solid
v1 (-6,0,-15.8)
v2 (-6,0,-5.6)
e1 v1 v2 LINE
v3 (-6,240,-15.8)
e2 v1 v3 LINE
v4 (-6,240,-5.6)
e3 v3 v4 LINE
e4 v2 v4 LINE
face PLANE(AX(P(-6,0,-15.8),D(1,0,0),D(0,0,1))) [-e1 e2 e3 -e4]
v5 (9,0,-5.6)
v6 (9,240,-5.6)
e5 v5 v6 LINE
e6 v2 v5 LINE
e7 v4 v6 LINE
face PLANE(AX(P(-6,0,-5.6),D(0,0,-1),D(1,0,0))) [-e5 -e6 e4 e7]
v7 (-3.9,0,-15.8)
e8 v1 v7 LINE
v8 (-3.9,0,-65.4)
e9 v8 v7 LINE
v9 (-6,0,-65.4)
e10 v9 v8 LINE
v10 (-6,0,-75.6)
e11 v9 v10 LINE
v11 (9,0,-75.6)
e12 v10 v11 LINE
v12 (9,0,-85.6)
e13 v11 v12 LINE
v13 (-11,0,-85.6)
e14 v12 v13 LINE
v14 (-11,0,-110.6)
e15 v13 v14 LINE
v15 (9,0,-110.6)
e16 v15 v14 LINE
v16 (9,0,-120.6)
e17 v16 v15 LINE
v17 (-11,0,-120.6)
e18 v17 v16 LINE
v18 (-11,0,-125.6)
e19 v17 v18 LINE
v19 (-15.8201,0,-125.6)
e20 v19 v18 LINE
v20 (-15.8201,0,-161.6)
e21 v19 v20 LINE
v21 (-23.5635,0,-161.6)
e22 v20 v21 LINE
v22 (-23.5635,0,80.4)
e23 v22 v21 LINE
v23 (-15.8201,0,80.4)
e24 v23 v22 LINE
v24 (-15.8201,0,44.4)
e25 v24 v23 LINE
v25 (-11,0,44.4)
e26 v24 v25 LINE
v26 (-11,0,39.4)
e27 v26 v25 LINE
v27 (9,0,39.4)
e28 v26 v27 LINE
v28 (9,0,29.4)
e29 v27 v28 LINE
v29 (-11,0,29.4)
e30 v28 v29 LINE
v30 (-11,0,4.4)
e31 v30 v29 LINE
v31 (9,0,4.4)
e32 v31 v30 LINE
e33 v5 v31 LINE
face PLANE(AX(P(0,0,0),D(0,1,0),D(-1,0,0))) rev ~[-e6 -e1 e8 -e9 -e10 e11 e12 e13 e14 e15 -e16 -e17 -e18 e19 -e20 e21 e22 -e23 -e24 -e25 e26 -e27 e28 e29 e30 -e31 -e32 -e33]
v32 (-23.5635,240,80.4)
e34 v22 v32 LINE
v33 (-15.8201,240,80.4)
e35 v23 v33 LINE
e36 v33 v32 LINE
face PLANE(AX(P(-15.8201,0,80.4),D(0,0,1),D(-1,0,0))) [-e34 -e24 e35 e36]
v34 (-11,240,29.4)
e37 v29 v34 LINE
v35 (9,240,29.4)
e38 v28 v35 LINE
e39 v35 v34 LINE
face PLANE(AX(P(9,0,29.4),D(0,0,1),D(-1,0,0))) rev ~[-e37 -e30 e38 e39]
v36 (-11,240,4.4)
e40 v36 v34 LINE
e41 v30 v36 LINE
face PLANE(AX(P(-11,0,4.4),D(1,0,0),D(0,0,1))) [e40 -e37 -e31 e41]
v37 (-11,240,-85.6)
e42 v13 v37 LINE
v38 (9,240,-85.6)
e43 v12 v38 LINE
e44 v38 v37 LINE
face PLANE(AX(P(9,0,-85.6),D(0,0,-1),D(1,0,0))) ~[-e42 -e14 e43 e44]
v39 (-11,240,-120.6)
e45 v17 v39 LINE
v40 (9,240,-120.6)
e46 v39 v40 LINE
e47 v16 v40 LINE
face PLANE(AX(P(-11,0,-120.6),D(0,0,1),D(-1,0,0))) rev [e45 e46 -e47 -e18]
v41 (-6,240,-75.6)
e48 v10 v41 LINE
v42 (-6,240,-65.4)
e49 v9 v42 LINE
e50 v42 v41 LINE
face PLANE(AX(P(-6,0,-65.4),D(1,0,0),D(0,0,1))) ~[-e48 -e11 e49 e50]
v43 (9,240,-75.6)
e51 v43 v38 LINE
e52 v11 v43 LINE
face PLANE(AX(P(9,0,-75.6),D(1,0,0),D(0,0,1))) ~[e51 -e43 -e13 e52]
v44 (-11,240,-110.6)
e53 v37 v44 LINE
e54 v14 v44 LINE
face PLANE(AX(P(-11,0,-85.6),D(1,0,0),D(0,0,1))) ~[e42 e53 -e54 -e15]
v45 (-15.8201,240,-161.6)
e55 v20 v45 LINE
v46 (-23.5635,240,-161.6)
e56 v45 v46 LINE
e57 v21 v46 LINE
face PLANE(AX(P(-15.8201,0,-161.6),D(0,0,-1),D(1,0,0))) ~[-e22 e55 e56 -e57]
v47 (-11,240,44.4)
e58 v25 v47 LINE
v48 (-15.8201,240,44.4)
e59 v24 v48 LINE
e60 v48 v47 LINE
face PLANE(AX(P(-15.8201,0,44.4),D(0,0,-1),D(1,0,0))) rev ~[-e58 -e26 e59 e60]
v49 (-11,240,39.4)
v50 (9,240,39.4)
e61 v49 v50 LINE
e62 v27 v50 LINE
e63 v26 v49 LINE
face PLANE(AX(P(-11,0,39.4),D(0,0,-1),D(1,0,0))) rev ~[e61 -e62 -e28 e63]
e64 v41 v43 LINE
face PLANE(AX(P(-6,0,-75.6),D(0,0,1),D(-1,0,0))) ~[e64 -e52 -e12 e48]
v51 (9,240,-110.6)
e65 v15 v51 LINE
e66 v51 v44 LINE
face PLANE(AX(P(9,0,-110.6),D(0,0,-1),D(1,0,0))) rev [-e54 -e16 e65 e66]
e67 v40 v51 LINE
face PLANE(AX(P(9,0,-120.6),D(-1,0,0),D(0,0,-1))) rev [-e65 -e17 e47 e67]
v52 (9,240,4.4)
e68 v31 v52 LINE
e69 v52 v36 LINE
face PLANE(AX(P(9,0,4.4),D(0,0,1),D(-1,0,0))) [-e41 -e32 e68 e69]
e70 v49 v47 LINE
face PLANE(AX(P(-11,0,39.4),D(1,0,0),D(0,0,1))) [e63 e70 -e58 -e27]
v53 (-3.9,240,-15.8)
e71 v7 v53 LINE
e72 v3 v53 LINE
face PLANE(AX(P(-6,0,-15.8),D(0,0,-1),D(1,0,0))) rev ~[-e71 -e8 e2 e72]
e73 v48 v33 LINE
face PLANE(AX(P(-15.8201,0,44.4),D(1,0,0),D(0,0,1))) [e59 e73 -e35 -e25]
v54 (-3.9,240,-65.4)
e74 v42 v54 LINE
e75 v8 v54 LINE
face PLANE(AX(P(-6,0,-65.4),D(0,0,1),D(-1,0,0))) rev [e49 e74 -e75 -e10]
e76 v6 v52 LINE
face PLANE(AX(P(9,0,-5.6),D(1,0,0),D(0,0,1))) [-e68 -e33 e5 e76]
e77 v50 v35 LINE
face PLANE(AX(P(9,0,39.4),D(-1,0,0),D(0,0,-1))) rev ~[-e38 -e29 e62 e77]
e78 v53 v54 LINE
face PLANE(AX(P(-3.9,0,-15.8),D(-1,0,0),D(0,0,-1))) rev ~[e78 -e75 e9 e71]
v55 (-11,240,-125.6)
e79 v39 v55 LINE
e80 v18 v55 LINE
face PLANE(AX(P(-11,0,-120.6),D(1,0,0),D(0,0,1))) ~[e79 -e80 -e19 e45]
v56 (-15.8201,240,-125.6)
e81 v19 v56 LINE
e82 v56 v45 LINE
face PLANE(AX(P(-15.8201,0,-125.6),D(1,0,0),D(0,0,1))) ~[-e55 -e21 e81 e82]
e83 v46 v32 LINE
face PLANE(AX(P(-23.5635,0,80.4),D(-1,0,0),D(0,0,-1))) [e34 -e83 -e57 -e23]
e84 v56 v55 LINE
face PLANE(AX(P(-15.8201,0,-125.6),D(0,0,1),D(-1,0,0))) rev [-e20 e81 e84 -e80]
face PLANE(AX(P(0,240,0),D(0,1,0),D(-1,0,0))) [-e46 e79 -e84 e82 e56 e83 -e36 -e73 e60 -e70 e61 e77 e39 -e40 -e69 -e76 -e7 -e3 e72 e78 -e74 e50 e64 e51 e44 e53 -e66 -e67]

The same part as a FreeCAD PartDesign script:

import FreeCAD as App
import Part
import Sketcher
Q = App.Units.Quantity

doc = App.newDocument("Part")
body = doc.addObject("PartDesign::Body", "Body")

sketch1 = body.newObject("Sketcher::SketchObject", "Sketch")
sketch1.AttachmentSupport = (doc.getObject("XZ_Plane"), [""])
sketch1.MapMode = "FlatFace"
sketch1.addGeometry([
    Part.LineSegment(App.Vector(-15.8, 80.4, 0), App.Vector(-15.8, 44.4, 0)),
    Part.LineSegment(App.Vector(-15.8, 44.4, 0), App.Vector(-11, 44.4, 0)),
    Part.LineSegment(App.Vector(-11, 44.4, 0), App.Vector(-11, 39.4, 0)),
    Part.LineSegment(App.Vector(-11, 39.4, 0), App.Vector(9, 39.4, 0)),
    Part.LineSegment(App.Vector(9, 39.4, 0), App.Vector(9, 29.4, 0)),
    Part.LineSegment(App.Vector(9, 29.4, 0), App.Vector(-11, 29.4, 0)),
    Part.LineSegment(App.Vector(-11, 29.4, 0), App.Vector(-11, 4.4, 0)),
    Part.LineSegment(App.Vector(-11, 4.4, 0), App.Vector(9, 4.4, 0)),
    Part.LineSegment(App.Vector(9, 4.4, 0), App.Vector(9, -5.6, 0)),
    Part.LineSegment(App.Vector(9, -5.6, 0), App.Vector(-6, -5.6, 0)),
    Part.LineSegment(App.Vector(-6, -5.6, 0), App.Vector(-6, -15.8, 0)),
    Part.LineSegment(App.Vector(-6, -15.8, 0), App.Vector(-3.9, -15.8, 0)),
    Part.LineSegment(App.Vector(-3.9, -15.8, 0), App.Vector(-3.9, -40.6, 0)),
    Part.LineSegment(App.Vector(-3.9, -40.6, 0), App.Vector(-23.6, -40.6, 0)),
    Part.LineSegment(App.Vector(-23.6, -40.6, 0), App.Vector(-23.6, 80.4, 0)),
    Part.LineSegment(App.Vector(-23.6, 80.4, 0), App.Vector(-15.8, 80.4, 0)),
], False)
sketch1.addConstraint([
    Sketcher.Constraint("Coincident", 0, 2, 1, 1),
    Sketcher.Constraint("Coincident", 1, 2, 2, 1),
    Sketcher.Constraint("Coincident", 2, 2, 3, 1),
    Sketcher.Constraint("Coincident", 3, 2, 4, 1),
    Sketcher.Constraint("Coincident", 4, 2, 5, 1),
    Sketcher.Constraint("Coincident", 5, 2, 6, 1),
    Sketcher.Constraint("Coincident", 6, 2, 7, 1),
    Sketcher.Constraint("Coincident", 7, 2, 8, 1),
    Sketcher.Constraint("Coincident", 8, 2, 9, 1),
    Sketcher.Constraint("Coincident", 9, 2, 10, 1),
    Sketcher.Constraint("Coincident", 10, 2, 11, 1),
    Sketcher.Constraint("Coincident", 11, 2, 12, 1),
    Sketcher.Constraint("Coincident", 12, 2, 13, 1),
    Sketcher.Constraint("Coincident", 13, 2, 14, 1),
    Sketcher.Constraint("Coincident", 14, 2, 15, 1),
    Sketcher.Constraint("Coincident", 15, 2, 0, 1),
    Sketcher.Constraint("Vertical", 0),
    Sketcher.Constraint("Horizontal", 1),
    Sketcher.Constraint("Vertical", 2),
    Sketcher.Constraint("Horizontal", 3),
    Sketcher.Constraint("Vertical", 4),
    Sketcher.Constraint("Horizontal", 5),
    Sketcher.Constraint("Vertical", 6),
    Sketcher.Constraint("Horizontal", 7),
    Sketcher.Constraint("Vertical", 8),
    Sketcher.Constraint("Horizontal", 9),
    Sketcher.Constraint("Vertical", 10),
    Sketcher.Constraint("Horizontal", 11),
    Sketcher.Constraint("Vertical", 12),
    Sketcher.Constraint("Horizontal", 13),
    Sketcher.Constraint("Vertical", 14),
    Sketcher.Constraint("Horizontal", 15),
    Sketcher.Constraint("Vertical", 2, 2, 5, 2),
    Sketcher.Constraint("Vertical", 4, 2, 7, 2),
    Sketcher.Constraint("Equal", 4, 8),
    Sketcher.Constraint("DistanceY", 0, 2, 0, 1, Q("36 mm")),
    Sketcher.Constraint("DistanceY", 2, 2, 2, 1, Q("5 mm")),
    Sketcher.Constraint("DistanceY", 4, 2, 4, 1, Q("10 mm")),
    Sketcher.Constraint("DistanceX", 11, 1, 11, 2, Q("2.1 mm")),
    Sketcher.Constraint("DistanceY", 10, 2, 10, 1, Q("10.2 mm")),
    Sketcher.Constraint("DistanceY", 12, 2, 12, 1, Q("24.8 mm")),
    Sketcher.Constraint("DistanceY", 6, 2, 2, 2, Q("35 mm")),
    Sketcher.Constraint("DistanceX", 6, 2, 9, 2, Q("5 mm")),
    Sketcher.Constraint("DistanceX", 3, 1, 3, 2, Q("20 mm")),
    Sketcher.Constraint("DistanceX", 1, 2, -1, 1, Q("11 mm")),
    Sketcher.Constraint("DistanceX", 1, 1, 1, 2, Q("4.82 mm")),
    Sketcher.Constraint("DistanceY", -1, 1, 0, 2, Q("44.4 mm")),
    Sketcher.Constraint("DistanceX", 13, 2, 13, 1, Q("19.6635 mm")),
])
pad1 = body.newObject("PartDesign::Pad", "Pad")
pad1.Profile = sketch1
pad1.Length = 240
pad1.Reversed = True
doc.recompute()

datumplane = body.newObject("PartDesign::Plane", "DatumPlane")
datumplane.AttachmentSupport = (doc.getObject("XY_Plane"), [""])
datumplane.MapMode = "FlatFace"
datumplane.AttachmentOffset = App.Placement(App.Vector(0, 0, -40.6), App.Rotation())
mirrored = body.newObject("PartDesign::Mirrored", "Mirrored")
mirrored.Originals = [pad1]
mirrored.MirrorPlane = (datumplane, [""])
body.Tip = mirrored

doc.recompute()
